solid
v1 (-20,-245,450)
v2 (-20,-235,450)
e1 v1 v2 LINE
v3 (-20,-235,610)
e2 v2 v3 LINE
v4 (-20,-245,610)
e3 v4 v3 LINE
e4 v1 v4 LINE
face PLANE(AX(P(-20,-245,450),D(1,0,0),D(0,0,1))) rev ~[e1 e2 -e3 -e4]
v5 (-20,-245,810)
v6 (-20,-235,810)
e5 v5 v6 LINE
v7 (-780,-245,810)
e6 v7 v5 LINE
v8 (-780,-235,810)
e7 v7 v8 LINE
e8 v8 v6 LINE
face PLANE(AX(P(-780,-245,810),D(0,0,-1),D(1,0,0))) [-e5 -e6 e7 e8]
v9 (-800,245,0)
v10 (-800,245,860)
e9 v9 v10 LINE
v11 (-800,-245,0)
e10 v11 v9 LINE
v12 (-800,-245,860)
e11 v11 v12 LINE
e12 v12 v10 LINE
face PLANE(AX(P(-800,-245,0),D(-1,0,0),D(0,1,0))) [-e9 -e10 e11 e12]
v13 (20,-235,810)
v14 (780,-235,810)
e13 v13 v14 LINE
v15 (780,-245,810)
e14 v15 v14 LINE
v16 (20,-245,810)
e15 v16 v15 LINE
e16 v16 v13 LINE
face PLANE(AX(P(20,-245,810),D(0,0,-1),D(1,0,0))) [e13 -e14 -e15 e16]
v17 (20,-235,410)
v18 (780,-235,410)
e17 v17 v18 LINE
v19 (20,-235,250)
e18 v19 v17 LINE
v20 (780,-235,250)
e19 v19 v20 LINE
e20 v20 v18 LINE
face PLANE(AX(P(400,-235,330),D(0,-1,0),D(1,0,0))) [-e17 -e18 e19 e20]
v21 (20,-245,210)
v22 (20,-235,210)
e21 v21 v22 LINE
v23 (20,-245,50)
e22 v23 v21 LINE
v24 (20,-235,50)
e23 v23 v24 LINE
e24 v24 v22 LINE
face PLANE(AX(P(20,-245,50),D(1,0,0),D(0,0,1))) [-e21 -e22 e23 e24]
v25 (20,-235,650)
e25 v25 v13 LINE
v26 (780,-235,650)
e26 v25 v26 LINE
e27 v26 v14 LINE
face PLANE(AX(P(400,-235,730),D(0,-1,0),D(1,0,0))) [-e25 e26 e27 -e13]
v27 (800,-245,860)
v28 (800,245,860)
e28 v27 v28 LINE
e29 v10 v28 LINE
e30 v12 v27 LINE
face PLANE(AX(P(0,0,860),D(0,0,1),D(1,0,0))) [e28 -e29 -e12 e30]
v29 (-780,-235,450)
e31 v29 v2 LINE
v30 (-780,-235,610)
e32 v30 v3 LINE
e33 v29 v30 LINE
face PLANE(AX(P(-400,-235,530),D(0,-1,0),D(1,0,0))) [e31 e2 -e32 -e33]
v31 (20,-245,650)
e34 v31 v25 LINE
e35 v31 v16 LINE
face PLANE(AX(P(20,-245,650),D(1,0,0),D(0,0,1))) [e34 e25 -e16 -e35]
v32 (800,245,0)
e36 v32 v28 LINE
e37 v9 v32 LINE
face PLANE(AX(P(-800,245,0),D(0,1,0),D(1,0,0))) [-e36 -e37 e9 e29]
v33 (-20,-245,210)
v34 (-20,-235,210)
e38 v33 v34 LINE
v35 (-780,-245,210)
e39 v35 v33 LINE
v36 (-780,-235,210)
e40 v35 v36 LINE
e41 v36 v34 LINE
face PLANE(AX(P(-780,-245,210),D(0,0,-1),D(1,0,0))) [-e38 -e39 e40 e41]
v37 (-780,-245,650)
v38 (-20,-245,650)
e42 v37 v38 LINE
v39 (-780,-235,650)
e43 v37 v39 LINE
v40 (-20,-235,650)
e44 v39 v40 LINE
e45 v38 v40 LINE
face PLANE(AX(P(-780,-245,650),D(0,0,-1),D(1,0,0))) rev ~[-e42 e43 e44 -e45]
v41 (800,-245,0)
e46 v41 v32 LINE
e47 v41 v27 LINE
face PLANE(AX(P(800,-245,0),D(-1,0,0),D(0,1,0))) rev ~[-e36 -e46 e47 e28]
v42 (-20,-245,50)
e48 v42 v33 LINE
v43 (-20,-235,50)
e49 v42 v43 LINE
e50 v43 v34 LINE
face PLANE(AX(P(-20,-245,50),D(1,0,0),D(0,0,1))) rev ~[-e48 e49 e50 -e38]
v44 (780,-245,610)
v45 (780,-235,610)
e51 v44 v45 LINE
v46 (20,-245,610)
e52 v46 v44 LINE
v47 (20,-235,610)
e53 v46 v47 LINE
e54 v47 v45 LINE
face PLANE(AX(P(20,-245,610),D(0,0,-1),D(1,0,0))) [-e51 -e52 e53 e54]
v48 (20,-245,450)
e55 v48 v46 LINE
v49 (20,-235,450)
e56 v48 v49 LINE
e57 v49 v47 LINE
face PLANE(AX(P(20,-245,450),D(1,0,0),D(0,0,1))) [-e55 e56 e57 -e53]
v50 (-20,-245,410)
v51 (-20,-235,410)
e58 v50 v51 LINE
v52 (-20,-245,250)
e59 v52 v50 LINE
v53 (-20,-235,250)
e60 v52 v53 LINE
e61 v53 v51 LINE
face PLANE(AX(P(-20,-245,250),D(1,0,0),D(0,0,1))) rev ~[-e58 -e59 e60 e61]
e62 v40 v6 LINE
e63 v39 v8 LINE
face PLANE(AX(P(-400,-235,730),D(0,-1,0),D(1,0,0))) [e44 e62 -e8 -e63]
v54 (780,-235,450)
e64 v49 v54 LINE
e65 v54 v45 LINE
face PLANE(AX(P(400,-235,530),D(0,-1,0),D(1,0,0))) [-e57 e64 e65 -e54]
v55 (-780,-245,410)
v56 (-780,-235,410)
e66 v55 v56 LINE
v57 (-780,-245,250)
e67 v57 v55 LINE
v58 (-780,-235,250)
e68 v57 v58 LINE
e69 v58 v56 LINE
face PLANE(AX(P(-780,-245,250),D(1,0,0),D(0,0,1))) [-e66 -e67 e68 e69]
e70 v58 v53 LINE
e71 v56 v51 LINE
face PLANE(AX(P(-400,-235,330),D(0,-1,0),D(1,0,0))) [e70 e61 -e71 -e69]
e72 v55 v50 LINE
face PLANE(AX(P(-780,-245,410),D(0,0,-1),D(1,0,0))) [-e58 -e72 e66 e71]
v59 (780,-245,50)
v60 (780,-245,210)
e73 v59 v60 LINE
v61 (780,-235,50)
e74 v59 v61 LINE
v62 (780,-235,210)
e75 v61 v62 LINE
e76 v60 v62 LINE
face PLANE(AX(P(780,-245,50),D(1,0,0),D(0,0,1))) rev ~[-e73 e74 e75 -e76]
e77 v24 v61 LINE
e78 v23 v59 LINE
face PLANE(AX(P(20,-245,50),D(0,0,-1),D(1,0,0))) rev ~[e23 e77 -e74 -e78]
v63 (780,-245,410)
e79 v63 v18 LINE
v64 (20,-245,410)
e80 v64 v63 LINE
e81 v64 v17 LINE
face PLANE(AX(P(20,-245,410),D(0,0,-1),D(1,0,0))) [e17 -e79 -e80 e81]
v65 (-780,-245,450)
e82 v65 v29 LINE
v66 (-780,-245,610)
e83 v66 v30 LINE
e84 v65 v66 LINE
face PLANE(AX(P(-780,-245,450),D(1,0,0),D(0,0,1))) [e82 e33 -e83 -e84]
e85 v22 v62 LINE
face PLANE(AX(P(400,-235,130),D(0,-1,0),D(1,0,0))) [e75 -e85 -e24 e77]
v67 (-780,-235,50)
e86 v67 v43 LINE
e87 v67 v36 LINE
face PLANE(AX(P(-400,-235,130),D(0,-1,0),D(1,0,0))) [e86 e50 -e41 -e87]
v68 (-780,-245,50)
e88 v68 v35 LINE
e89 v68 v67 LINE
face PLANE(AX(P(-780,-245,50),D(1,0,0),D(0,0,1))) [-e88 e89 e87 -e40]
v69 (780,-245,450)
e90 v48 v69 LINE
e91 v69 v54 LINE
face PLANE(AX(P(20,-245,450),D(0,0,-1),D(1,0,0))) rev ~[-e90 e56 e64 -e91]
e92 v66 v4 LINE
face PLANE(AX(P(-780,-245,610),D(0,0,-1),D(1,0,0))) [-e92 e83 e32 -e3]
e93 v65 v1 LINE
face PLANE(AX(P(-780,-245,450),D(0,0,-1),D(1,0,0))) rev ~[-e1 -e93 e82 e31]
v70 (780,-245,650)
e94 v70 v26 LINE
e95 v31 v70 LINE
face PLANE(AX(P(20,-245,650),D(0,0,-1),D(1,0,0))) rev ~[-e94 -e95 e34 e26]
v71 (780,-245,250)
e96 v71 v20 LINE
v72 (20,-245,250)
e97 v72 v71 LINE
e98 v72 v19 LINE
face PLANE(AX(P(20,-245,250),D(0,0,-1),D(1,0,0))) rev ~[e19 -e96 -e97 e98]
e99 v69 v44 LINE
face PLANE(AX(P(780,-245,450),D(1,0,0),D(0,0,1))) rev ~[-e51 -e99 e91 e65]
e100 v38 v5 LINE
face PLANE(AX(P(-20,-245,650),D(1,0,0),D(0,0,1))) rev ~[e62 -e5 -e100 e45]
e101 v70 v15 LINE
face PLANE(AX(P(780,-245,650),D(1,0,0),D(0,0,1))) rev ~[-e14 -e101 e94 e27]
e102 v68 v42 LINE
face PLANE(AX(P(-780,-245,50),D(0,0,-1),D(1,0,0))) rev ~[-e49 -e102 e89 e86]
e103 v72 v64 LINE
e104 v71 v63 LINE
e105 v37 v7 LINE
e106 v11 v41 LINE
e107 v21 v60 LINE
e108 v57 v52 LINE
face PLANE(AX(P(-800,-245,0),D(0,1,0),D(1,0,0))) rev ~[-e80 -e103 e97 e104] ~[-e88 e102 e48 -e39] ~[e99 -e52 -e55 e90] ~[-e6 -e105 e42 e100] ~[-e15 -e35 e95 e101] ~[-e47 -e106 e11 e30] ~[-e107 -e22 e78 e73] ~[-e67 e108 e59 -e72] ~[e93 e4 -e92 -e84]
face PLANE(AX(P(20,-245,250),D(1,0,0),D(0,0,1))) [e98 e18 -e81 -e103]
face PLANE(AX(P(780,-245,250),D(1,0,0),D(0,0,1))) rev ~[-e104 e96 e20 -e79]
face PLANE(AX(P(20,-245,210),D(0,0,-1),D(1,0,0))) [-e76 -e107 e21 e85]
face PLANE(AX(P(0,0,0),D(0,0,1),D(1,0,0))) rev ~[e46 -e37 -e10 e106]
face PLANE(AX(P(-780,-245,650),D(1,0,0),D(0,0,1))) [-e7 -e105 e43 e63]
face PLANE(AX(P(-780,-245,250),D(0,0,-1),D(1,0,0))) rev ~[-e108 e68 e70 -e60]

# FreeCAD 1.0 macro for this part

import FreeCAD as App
import Part
import Sketcher
Q = App.Units.Quantity

doc = App.newDocument("Part")
params = doc.addObject("Spreadsheet::Sheet", "Params")
for row, (alias, value) in enumerate([
    ("sketch1_width", "1600 mm"),
    ("sketch1_height", "490 mm"),
    ("pad1_length", "860 mm"),
    ("sketch2_width", "760 mm"),
    ("sketch2_height", "160 mm"),
    ("pocket1_length", "10 mm"),
], start=1):
    params.set(f"A{row}", alias)
    params.set(f"B{row}", "=" + value)
    params.setAlias(f"B{row}", alias)

body = doc.addObject("PartDesign::Body", "Body")

# Sketch on XY plane
sketch1 = body.newObject("Sketcher::SketchObject", "Sketch")
sketch1.AttachmentSupport = (doc.getObject("XY_Plane"), [""])
sketch1.MapMode = "FlatFace"
sketch1.addGeometry([
    Part.LineSegment(App.Vector(-800, 245, 0), App.Vector(-800, -245, 0)),
    Part.LineSegment(App.Vector(-800, -245, 0), App.Vector(800, -245, 0)),
    Part.LineSegment(App.Vector(800, -245, 0), App.Vector(800, 245, 0)),
    Part.LineSegment(App.Vector(800, 245, 0), App.Vector(-800, 245, 0)),
], False)
sketch1.addConstraint([
    Sketcher.Constraint("Coincident", 0, 2, 1, 1),
    Sketcher.Constraint("Coincident", 1, 2, 2, 1),
    Sketcher.Constraint("Coincident", 2, 2, 3, 1),
    Sketcher.Constraint("Coincident", 3, 2, 0, 1),
    Sketcher.Constraint("Vertical", 0),
    Sketcher.Constraint("Horizontal", 1),
    Sketcher.Constraint("Vertical", 2),
    Sketcher.Constraint("Horizontal", 3),
    Sketcher.Constraint("Symmetric", 0, 2, 2, 2, -1, 1),
    Sketcher.Constraint("DistanceX", 1, 1, 1, 2, Q("1600 mm")),
    Sketcher.Constraint("DistanceY", 0, 2, 0, 1, Q("490 mm")),
])
sketch1.setExpression("Constraints[9]", "Params.sketch1_width")
sketch1.setExpression("Constraints[10]", "Params.sketch1_height")
pad1 = body.newObject("PartDesign::Pad", "Pad")
pad1.Profile = sketch1
pad1.setExpression("Length", "Params.pad1_length")

# Sketch on XZ plane
sketch2 = body.newObject("Sketcher::SketchObject", "Sketch001")
sketch2.AttachmentSupport = (doc.getObject("XZ_Plane"), [""])
sketch2.MapMode = "FlatFace"
sketch2.AttachmentOffset = App.Placement(App.Vector(0, 0, 245), App.Rotation())
sketch2.addGeometry([
    Part.LineSegment(App.Vector(20, 810, 0), App.Vector(20, 650, 0)),  # 0
    Part.LineSegment(App.Vector(20, 650, 0), App.Vector(780, 650, 0)),  # 1
    Part.LineSegment(App.Vector(780, 650, 0), App.Vector(780, 810, 0)),  # 2
    Part.LineSegment(App.Vector(780, 810, 0), App.Vector(20, 810, 0)),  # 3
    Part.LineSegment(App.Vector(-780, 810, 0), App.Vector(-780, 650, 0)),  # 4
    Part.LineSegment(App.Vector(-780, 650, 0), App.Vector(-20, 650, 0)),  # 5
    Part.LineSegment(App.Vector(-20, 650, 0), App.Vector(-20, 810, 0)),  # 6
    Part.LineSegment(App.Vector(-20, 810, 0), App.Vector(-780, 810, 0)),  # 7
    Part.LineSegment(App.Vector(-780, 610, 0), App.Vector(-780, 450, 0)),  # 8
    Part.LineSegment(App.Vector(-780, 450, 0), App.Vector(-20, 450, 0)),  # 9
    Part.LineSegment(App.Vector(-20, 450, 0), App.Vector(-20, 610, 0)),  # 10
    Part.LineSegment(App.Vector(-20, 610, 0), App.Vector(-780, 610, 0)),  # 11
    Part.LineSegment(App.Vector(20, 610, 0), App.Vector(20, 450, 0)),  # 12
    Part.LineSegment(App.Vector(20, 450, 0), App.Vector(780, 450, 0)),  # 13
    Part.LineSegment(App.Vector(780, 450, 0), App.Vector(780, 610, 0)),  # 14
    Part.LineSegment(App.Vector(780, 610, 0), App.Vector(20, 610, 0)),  # 15
    Part.LineSegment(App.Vector(20, 410, 0), App.Vector(20, 250, 0)),  # 16
    Part.LineSegment(App.Vector(20, 250, 0), App.Vector(780, 250, 0)),  # 17
    Part.LineSegment(App.Vector(780, 250, 0), App.Vector(780, 410, 0)),  # 18
    Part.LineSegment(App.Vector(780, 410, 0), App.Vector(20, 410, 0)),  # 19
    Part.LineSegment(App.Vector(-780, 410, 0), App.Vector(-780, 250, 0)),  # 20
    Part.LineSegment(App.Vector(-780, 250, 0), App.Vector(-20, 250, 0)),  # 21
    Part.LineSegment(App.Vector(-20, 250, 0), App.Vector(-20, 410, 0)),  # 22
    Part.LineSegment(App.Vector(-20, 410, 0), App.Vector(-780, 410, 0)),  # 23
    Part.LineSegment(App.Vector(-780, 210, 0), App.Vector(-780, 50, 0)),  # 24
    Part.LineSegment(App.Vector(-780, 50, 0), App.Vector(-20, 50, 0)),  # 25
    Part.LineSegment(App.Vector(-20, 50, 0), App.Vector(-20, 210, 0)),  # 26
    Part.LineSegment(App.Vector(-20, 210, 0), App.Vector(-780, 210, 0)),  # 27
    Part.LineSegment(App.Vector(20, 210, 0), App.Vector(20, 50, 0)),  # 28
    Part.LineSegment(App.Vector(20, 50, 0), App.Vector(780, 50, 0)),  # 29
    Part.LineSegment(App.Vector(780, 50, 0), App.Vector(780, 210, 0)),  # 30
    Part.LineSegment(App.Vector(780, 210, 0), App.Vector(20, 210, 0)),  # 31
], False)
sketch2.addConstraint([
    Sketcher.Constraint("Coincident", 0, 2, 1, 1),
    Sketcher.Constraint("Coincident", 1, 2, 2, 1),
    Sketcher.Constraint("Coincident", 2, 2, 3, 1),
    Sketcher.Constraint("Coincident", 3, 2, 0, 1),
    Sketcher.Constraint("Coincident", 4, 2, 5, 1),
    Sketcher.Constraint("Coincident", 5, 2, 6, 1),
    Sketcher.Constraint("Coincident", 6, 2, 7, 1),
    Sketcher.Constraint("Coincident", 7, 2, 4, 1),
    Sketcher.Constraint("Coincident", 8, 2, 9, 1),
    Sketcher.Constraint("Coincident", 9, 2, 10, 1),
    Sketcher.Constraint("Coincident", 10, 2, 11, 1),
    Sketcher.Constraint("Coincident", 11, 2, 8, 1),
    Sketcher.Constraint("Coincident", 12, 2, 13, 1),
    Sketcher.Constraint("Coincident", 13, 2, 14, 1),
    Sketcher.Constraint("Coincident", 14, 2, 15, 1),
    Sketcher.Constraint("Coincident", 15, 2, 12, 1),
    Sketcher.Constraint("Coincident", 16, 2, 17, 1),
    Sketcher.Constraint("Coincident", 17, 2, 18, 1),
    Sketcher.Constraint("Coincident", 18, 2, 19, 1),
    Sketcher.Constraint("Coincident", 19, 2, 16, 1),
    Sketcher.Constraint("Coincident", 20, 2, 21, 1),
    Sketcher.Constraint("Coincident", 21, 2, 22, 1),
    Sketcher.Constraint("Coincident", 22, 2, 23, 1),
    Sketcher.Constraint("Coincident", 23, 2, 20, 1),
    Sketcher.Constraint("Coincident", 24, 2, 25, 1),
    Sketcher.Constraint("Coincident", 25, 2, 26, 1),
    Sketcher.Constraint("Coincident", 26, 2, 27, 1),
    Sketcher.Constraint("Coincident", 27, 2, 24, 1),
    Sketcher.Constraint("Coincident", 28, 2, 29, 1),
    Sketcher.Constraint("Coincident", 29, 2, 30, 1),
    Sketcher.Constraint("Coincident", 30, 2, 31, 1),
    Sketcher.Constraint("Coincident", 31, 2, 28, 1),
    Sketcher.Constraint("Vertical", 0),
    Sketcher.Constraint("Horizontal", 1),
    Sketcher.Constraint("Vertical", 2),
    Sketcher.Constraint("Horizontal", 3),
    Sketcher.Constraint("Vertical", 4),
    Sketcher.Constraint("Horizontal", 5),
    Sketcher.Constraint("Vertical", 6),
    Sketcher.Constraint("Horizontal", 7),
    Sketcher.Constraint("Vertical", 8),
    Sketcher.Constraint("Horizontal", 9),
    Sketcher.Constraint("Vertical", 10),
    Sketcher.Constraint("Horizontal", 11),
    Sketcher.Constraint("Vertical", 12),
    Sketcher.Constraint("Horizontal", 13),
    Sketcher.Constraint("Vertical", 14),
    Sketcher.Constraint("Horizontal", 15),
    Sketcher.Constraint("Vertical", 16),
    Sketcher.Constraint("Horizontal", 17),
    Sketcher.Constraint("Vertical", 18),
    Sketcher.Constraint("Horizontal", 19),
    Sketcher.Constraint("Vertical", 20),
    Sketcher.Constraint("Horizontal", 21),
    Sketcher.Constraint("Vertical", 22),
    Sketcher.Constraint("Horizontal", 23),
    Sketcher.Constraint("Vertical", 24),
    Sketcher.Constraint("Horizontal", 25),
    Sketcher.Constraint("Vertical", 26),
    Sketcher.Constraint("Horizontal", 27),
    Sketcher.Constraint("Vertical", 28),
    Sketcher.Constraint("Horizontal", 29),
    Sketcher.Constraint("Vertical", 30),
    Sketcher.Constraint("Horizontal", 31),
    Sketcher.Constraint("Symmetric", 1, 2, 4, 2, -2),
    Sketcher.Constraint("Symmetric", 3, 2, 6, 2, -2),
    Sketcher.Constraint("Symmetric", 9, 2, 12, 2, -2),
    Sketcher.Constraint("Symmetric", 11, 2, 14, 2, -2),
    Sketcher.Constraint("Symmetric", 17, 2, 20, 2, -2),
    Sketcher.Constraint("Symmetric", 19, 2, 22, 2, -2),
    Sketcher.Constraint("Symmetric", 25, 2, 28, 2, -2),
    Sketcher.Constraint("Symmetric", 27, 2, 30, 2, -2),
    Sketcher.Constraint("Vertical", 7, 2, 8, 2),
    Sketcher.Constraint("Vertical", 6, 2, 9, 2),
    Sketcher.Constraint("Vertical", 15, 2, 16, 2),
    Sketcher.Constraint("Vertical", 14, 2, 17, 2),
    Sketcher.Constraint("Vertical", 23, 2, 24, 2),
    Sketcher.Constraint("Vertical", 22, 2, 25, 2),
    Sketcher.Constraint("Equal", 6, 8),
    Sketcher.Constraint("Equal", 14, 16),
    Sketcher.Constraint("Equal", 22, 24),
    Sketcher.Constraint("DistanceX", 1, 1, 1, 2, Q("760 mm")),
    Sketcher.Constraint("DistanceY", 0, 2, 0, 1, Q("160 mm")),
    Sketcher.Constraint("DistanceX", -1, 1, 0, 2, Q("20 mm")),
    Sketcher.Constraint("DistanceY", -1, 1, 0, 2, Q("650 mm")),
    Sketcher.Constraint("DistanceY", -1, 1, 8, 2, Q("450 mm")),
    Sketcher.Constraint("DistanceY", -1, 1, 16, 2, Q("250 mm")),
    Sketcher.Constraint("DistanceY", -1, 1, 24, 2, Q("50 mm")),
])
sketch2.setExpression("Constraints[81]", "Params.sketch2_width")
sketch2.setExpression("Constraints[82]", "Params.sketch2_height")
pocket1 = body.newObject("PartDesign::Pocket", "Pocket")
pocket1.Profile = sketch2
pocket1.setExpression("Length", "Params.pocket1_length")

doc.recompute()
